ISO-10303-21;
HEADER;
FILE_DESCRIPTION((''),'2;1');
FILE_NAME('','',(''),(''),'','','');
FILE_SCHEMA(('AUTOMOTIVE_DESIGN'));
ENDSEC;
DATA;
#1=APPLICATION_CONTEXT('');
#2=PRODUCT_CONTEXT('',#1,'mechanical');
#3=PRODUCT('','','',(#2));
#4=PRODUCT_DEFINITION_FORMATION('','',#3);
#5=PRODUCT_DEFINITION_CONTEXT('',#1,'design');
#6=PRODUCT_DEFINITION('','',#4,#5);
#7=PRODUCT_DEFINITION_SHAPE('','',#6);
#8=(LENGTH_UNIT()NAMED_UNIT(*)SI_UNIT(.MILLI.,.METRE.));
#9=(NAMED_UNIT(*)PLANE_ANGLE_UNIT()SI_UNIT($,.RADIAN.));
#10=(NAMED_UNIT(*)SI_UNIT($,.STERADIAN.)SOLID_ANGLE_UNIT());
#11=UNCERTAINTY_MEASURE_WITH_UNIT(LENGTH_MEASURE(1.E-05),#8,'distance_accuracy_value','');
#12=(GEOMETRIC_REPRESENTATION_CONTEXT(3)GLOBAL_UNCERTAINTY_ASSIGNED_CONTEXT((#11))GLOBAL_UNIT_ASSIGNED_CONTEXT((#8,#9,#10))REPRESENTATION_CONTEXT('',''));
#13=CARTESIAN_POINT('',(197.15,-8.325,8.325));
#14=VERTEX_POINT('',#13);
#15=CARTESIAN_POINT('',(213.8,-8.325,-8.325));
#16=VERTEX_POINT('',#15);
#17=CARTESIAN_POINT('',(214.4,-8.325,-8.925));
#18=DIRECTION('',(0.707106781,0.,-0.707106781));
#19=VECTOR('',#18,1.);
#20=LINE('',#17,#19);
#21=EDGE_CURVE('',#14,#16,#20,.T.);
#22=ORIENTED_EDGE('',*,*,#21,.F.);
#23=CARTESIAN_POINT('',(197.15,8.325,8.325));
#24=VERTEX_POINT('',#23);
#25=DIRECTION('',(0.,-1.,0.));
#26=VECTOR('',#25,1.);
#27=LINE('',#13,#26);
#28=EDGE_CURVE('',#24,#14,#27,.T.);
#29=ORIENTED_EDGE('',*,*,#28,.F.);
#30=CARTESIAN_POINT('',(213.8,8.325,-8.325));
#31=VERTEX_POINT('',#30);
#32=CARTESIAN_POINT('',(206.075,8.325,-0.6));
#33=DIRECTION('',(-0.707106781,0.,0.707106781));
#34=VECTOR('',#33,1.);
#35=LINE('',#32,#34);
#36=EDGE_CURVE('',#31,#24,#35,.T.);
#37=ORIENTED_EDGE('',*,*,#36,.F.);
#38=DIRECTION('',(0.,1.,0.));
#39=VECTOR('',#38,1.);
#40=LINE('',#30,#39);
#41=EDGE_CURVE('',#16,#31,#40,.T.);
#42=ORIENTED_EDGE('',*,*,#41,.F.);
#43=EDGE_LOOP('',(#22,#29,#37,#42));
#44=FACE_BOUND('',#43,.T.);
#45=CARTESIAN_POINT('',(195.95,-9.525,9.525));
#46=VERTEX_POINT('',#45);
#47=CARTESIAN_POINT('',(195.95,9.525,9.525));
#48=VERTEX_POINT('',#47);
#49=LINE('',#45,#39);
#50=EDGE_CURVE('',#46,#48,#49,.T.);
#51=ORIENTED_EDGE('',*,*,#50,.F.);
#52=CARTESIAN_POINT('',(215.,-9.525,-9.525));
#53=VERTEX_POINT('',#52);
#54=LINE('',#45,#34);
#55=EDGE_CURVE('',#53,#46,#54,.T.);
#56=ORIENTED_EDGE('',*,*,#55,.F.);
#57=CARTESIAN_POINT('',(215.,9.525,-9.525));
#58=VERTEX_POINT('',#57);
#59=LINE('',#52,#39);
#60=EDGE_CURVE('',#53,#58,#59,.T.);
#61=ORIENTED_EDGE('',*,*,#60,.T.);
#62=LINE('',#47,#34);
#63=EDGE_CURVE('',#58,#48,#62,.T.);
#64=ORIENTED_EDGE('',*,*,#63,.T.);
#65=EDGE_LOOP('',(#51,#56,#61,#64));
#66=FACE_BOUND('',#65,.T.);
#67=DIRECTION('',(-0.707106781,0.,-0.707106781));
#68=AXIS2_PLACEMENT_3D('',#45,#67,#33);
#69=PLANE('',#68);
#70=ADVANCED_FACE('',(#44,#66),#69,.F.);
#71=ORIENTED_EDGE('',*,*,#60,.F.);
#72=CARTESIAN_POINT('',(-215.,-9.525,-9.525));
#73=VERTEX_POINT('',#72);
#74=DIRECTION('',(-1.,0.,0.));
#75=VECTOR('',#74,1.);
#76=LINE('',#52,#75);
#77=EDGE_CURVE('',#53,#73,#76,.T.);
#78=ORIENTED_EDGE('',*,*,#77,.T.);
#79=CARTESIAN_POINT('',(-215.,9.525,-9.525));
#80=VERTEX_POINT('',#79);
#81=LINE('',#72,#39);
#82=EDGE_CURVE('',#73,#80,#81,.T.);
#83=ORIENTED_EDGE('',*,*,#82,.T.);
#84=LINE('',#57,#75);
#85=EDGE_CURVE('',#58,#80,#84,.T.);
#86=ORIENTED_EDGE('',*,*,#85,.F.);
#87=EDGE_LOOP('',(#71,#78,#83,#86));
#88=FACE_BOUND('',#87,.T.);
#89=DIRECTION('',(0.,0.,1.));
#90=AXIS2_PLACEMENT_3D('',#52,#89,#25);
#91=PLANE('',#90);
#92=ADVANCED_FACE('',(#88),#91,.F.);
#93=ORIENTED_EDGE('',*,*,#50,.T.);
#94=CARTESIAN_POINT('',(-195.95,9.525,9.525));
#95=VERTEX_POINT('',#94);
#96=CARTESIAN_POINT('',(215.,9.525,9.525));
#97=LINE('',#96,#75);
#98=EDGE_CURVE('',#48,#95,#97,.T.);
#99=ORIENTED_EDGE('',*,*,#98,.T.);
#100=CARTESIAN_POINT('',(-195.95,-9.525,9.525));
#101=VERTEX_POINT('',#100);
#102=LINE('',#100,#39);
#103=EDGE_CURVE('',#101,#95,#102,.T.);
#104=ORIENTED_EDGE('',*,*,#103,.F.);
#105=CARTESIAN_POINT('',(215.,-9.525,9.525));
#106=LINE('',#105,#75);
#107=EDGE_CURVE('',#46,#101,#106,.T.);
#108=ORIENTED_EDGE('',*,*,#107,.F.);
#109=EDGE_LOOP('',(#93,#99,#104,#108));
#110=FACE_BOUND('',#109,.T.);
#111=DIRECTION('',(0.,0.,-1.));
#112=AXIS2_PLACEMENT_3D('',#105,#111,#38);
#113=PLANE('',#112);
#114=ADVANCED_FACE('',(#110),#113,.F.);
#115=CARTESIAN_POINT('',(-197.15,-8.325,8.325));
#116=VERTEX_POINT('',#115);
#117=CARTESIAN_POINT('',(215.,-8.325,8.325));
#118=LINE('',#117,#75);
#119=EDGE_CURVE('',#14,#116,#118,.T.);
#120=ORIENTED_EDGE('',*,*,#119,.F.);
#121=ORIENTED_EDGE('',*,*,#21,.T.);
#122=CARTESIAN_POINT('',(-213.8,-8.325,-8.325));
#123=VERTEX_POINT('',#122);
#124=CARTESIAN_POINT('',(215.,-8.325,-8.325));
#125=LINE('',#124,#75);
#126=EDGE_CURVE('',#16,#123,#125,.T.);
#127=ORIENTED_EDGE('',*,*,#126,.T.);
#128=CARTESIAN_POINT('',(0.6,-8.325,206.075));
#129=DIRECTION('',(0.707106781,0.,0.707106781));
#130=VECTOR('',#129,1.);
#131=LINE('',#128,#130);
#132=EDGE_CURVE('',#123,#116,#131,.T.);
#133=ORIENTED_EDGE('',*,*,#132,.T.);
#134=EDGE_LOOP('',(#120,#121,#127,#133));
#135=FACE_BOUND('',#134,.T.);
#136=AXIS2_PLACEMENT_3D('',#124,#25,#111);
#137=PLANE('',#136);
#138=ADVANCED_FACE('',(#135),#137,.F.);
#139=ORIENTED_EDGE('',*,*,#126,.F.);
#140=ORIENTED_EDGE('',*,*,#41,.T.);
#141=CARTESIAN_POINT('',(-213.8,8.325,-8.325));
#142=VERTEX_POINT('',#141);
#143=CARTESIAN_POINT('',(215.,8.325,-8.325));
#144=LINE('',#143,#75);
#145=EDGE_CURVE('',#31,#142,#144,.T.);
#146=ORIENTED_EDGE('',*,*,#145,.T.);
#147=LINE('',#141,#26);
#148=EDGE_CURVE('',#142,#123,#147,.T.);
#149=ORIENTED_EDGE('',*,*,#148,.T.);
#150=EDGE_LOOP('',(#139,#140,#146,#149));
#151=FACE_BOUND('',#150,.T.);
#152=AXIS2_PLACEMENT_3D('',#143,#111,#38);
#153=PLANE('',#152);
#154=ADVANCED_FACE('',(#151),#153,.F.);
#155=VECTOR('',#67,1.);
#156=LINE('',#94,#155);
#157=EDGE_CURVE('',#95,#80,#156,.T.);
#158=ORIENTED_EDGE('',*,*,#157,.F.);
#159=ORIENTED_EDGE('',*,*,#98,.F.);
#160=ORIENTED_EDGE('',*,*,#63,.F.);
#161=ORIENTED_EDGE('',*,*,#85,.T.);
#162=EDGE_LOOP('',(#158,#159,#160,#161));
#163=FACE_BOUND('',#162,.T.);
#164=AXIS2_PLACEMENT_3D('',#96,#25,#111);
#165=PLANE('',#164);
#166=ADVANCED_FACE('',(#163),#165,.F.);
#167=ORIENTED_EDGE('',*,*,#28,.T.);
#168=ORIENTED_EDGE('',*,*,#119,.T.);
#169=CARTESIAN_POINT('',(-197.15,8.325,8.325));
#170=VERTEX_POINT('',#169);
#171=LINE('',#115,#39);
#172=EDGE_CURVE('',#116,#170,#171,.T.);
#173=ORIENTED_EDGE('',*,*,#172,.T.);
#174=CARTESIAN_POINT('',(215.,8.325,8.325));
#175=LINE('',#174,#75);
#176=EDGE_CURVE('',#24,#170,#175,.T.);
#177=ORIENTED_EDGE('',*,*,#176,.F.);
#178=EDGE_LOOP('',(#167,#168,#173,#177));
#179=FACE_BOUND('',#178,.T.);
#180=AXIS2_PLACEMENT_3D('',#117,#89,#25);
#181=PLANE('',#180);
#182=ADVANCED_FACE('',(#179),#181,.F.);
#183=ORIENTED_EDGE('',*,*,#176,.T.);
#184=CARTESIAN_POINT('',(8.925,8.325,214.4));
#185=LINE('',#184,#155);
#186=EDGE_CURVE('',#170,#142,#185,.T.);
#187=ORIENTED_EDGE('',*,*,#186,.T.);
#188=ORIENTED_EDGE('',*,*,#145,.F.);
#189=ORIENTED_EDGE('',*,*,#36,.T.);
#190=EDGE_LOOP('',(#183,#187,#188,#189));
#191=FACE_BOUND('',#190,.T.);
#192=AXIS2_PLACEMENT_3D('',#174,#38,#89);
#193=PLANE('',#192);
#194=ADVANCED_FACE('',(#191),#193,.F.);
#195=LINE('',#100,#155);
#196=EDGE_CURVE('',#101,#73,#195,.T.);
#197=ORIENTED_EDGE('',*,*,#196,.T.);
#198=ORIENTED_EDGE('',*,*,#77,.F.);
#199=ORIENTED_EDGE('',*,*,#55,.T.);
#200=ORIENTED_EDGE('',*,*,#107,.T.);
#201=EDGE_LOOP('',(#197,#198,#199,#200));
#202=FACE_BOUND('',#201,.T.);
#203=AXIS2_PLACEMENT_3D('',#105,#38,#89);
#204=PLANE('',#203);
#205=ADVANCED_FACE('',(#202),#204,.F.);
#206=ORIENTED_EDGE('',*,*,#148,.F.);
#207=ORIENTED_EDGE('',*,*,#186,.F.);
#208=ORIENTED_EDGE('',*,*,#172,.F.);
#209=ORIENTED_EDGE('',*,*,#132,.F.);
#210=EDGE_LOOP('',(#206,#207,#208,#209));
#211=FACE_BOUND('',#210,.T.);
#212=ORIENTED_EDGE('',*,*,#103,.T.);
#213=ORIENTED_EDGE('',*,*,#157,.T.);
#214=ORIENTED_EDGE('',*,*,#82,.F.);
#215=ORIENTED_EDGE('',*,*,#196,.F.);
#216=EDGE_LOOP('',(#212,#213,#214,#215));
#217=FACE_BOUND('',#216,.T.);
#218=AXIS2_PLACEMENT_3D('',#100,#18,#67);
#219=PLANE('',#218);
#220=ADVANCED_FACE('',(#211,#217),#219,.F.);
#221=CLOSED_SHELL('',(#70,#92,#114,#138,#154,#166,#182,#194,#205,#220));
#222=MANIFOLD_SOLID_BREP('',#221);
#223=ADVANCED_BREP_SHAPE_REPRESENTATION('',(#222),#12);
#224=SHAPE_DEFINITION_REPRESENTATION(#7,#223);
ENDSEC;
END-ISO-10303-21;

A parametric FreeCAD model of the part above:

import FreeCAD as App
import Part
import Sketcher
from FreeCAD import Vector
Q = App.Units.Quantity


def add_polygon(sketch, points):
    """Adds a closed chain of lines whose ends are joined by coincident constraints."""
    first, n = sketch.GeometryCount, len(points)
    for a, b in zip(points, points[1:] + points[:1]):
        sketch.addGeometry(Part.LineSegment(App.Vector(*a, 0), App.Vector(*b, 0)), False)
    for i in range(n):
        sketch.addConstraint(Sketcher.Constraint("Coincident", first + i, 2, first + (i + 1) % n, 1))

doc = App.newDocument("Part")
body = doc.addObject("PartDesign::Body", "Body")

# Sketch on YZ plane
sketch1 = doc.addObject("Sketcher::SketchObject", "Sketch")
body.addObject(sketch1)
sketch1.AttachmentSupport = (doc.YZ_Plane, [""])
sketch1.MapMode = "FlatFace"
add_polygon(sketch1, [(10, 10), (-10, 10), (-10, -10), (10, -10)])  # lines 0-3
sketch1.addConstraint([
    Sketcher.Constraint("Horizontal", 0),
    Sketcher.Constraint("Vertical", 1),
    Sketcher.Constraint("Horizontal", 2),
    Sketcher.Constraint("Vertical", 3),
    Sketcher.Constraint("Symmetric", 0, 2, 2, 2, -1, 1),
    Sketcher.Constraint("Equal", 2, 1),
    Sketcher.Constraint("DistanceX", 0, 2, 0, 1, Q("19.05 mm")),
])
pad1 = doc.addObject("PartDesign::Pad", "Pad")
body.addObject(pad1)
pad1.Profile = sketch1
pad1.Length = 430
pad1.Midplane = True

# Sketch on YZ plane
sketch2 = doc.addObject("Sketcher::SketchObject", "Sketch001")
body.addObject(sketch2)
sketch2.AttachmentSupport = (doc.YZ_Plane, [""])
sketch2.MapMode = "FlatFace"
sketch2.AttachmentOffset = App.Placement(Vector(0, 0, -215), App.Rotation())
add_polygon(sketch2, [(8, -8), (-8, -8), (-8, 8), (8, 8)])  # lines 0-3
sketch2.addConstraint([
    Sketcher.Constraint("Horizontal", 0),
    Sketcher.Constraint("Vertical", 1),
    Sketcher.Constraint("Horizontal", 2),
    Sketcher.Constraint("Vertical", 3),
    Sketcher.Constraint("Symmetric", 0, 2, 2, 2, -1, 1),
    Sketcher.Constraint("Equal", 2, 1),
    Sketcher.Constraint("DistanceX", 0, 2, 0, 1, Q("16.65 mm")),
])
pocket1 = doc.addObject("PartDesign::Pocket", "Pocket")
body.addObject(pocket1)
pocket1.Profile = sketch2
pocket1.Type = "ThroughAll"
pocket1.Reversed = True

# Sketch on XZ plane
sketch3 = doc.addObject("Sketcher::SketchObject", "Sketch002")
body.addObject(sketch3)
sketch3.AttachmentSupport = (doc.XZ_Plane, [""])
sketch3.MapMode = "FlatFace"
add_polygon(sketch3, [(-215, -10), (-215, 10), (-196, 10)])  # lines 0-2
add_polygon(sketch3, [(196, 10), (215, 10), (215, -10)])  # lines 3-5
sketch3.addConstraint([
    Sketcher.Constraint("Vertical", 0),
    Sketcher.Constraint("Horizontal", 1),
    Sketcher.Constraint("Horizontal", 3),
    Sketcher.Constraint("Vertical", 4),
    Sketcher.Constraint("Symmetric", 2, 2, 3, 2, -1, 1),
    Sketcher.Constraint("Symmetric", 1, 2, 5, 2, -2),
    Sketcher.Constraint("Perpendicular", 2, 5),
    Sketcher.Constraint("Horizontal", 2, 2, 4, 2),
    Sketcher.Constraint("DistanceX", 0, 2, -1, 1, Q("215 mm")),
    Sketcher.Constraint("DistanceX", 1, 1, 1, 2, Q("19.05 mm")),
])
pocket2 = doc.addObject("PartDesign::Pocket", "Pocket001")
body.addObject(pocket2)
pocket2.Profile = sketch3
pocket2.Type = "ThroughAll"
pocket2.Midplane = True

doc.recompute()
